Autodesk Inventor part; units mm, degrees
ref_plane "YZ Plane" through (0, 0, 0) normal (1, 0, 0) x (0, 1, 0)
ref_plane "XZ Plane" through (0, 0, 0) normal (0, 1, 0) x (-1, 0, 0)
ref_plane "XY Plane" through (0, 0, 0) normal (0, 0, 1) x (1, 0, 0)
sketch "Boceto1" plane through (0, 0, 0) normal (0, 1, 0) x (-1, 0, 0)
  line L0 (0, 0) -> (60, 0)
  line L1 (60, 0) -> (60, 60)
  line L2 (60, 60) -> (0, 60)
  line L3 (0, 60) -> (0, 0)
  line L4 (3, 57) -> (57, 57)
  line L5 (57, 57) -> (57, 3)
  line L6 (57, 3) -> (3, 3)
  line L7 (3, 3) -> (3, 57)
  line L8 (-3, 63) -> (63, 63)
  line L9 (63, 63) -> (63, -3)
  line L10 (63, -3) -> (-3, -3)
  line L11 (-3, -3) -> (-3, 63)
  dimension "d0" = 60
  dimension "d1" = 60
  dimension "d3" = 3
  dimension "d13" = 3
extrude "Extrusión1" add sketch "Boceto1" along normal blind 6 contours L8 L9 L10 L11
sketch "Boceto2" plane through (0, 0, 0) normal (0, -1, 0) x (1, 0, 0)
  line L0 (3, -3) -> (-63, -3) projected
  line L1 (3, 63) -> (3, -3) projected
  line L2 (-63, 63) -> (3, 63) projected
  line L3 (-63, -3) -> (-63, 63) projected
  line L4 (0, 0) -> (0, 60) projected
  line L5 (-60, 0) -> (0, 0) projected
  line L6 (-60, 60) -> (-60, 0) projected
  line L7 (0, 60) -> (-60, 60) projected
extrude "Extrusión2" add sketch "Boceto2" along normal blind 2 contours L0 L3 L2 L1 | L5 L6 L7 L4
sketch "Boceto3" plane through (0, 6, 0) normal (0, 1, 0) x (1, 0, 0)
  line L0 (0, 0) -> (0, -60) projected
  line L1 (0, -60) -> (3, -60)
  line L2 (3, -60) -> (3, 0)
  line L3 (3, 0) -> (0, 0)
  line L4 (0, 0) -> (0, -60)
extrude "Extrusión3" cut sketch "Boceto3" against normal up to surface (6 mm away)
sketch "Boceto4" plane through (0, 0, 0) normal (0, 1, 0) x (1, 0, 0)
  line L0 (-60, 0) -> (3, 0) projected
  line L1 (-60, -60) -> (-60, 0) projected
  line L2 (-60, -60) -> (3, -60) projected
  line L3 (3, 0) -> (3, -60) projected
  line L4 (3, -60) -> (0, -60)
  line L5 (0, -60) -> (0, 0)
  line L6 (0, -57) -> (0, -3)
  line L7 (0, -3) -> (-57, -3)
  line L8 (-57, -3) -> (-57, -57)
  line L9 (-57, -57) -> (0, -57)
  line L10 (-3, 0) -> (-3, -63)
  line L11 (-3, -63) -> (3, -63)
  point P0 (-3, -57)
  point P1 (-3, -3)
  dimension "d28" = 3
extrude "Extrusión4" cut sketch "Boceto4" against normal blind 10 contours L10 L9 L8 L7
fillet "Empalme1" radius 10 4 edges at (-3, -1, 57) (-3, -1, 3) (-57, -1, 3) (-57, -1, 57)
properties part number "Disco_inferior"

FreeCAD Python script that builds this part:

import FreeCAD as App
import Part
import Sketcher
from FreeCAD import Vector
Q = App.Units.Quantity


def edges_at(feature, points):
    """Names of the edges that pass closest to the given points."""
    edges = feature.Shape.Edges
    near = lambda p: min(range(len(edges)), key=lambda i: edges[i].distToShape(Part.Vertex(*p))[0])
    return sorted({f"Edge{near(p) + 1}" for p in points})


def add_polygon(sketch, points):
    """Adds a closed chain of lines whose ends are joined by coincident constraints."""
    first, n = sketch.GeometryCount, len(points)
    for a, b in zip(points, points[1:] + points[:1]):
        sketch.addGeometry(Part.LineSegment(App.Vector(*a, 0), App.Vector(*b, 0)), False)
    for i in range(n):
        sketch.addConstraint(Sketcher.Constraint("Coincident", first + i, 2, first + (i + 1) % n, 1))

doc = App.newDocument("Part")
params = doc.addObject("Spreadsheet::Sheet", "Params")
for row, (alias, value) in enumerate([
    ("sketch1_width", "60 mm"),
    ("pad1_length", "6 mm"),
    ("sketch2_width", "66 mm"),
    ("pad2_length", "2 mm"),
    ("sketch3_width", "3 mm"),
    ("sketch3_height", "60 mm"),
    ("pocket1_length", "6 mm"),
    ("sketch4_width", "54 mm"),
    ("pocket2_length", "10 mm"),
    ("fillet_radius", "10 mm"),
], start=1):
    params.set(f"A{row}", alias)
    params.set(f"B{row}", "=" + value)
    params.setAlias(f"B{row}", alias)

body = doc.addObject("PartDesign::Body", "Body")

# Sketch on XZ plane
sketch1 = body.newObject("Sketcher::SketchObject", "Sketch")
sketch1.AttachmentSupport = (doc.getObject("XZ_Plane"), [""])
sketch1.MapMode = "FlatFace"
add_polygon(sketch1, [(-63, 63), (3, 63), (3, -3), (-63, -3)])  # lines 0-3
add_polygon(sketch1, [(-60, 0), (0, 0), (0, 60), (-60, 60)])  # lines 4-7
sketch1.addConstraint(Sketcher.Constraint("Horizontal", 0))
sketch1.addConstraint(Sketcher.Constraint("Vertical", 1))
sketch1.addConstraint(Sketcher.Constraint("Horizontal", 2))
sketch1.addConstraint(Sketcher.Constraint("Vertical", 3))
sketch1.addConstraint(Sketcher.Constraint("Horizontal", 4))
sketch1.addConstraint(Sketcher.Constraint("Vertical", 5))
sketch1.addConstraint(Sketcher.Constraint("Horizontal", 6))
sketch1.addConstraint(Sketcher.Constraint("Vertical", 7))
sketch1.addConstraint(Sketcher.Constraint("Coincident", 4, 2, -1, 1))
sketch1.addConstraint(Sketcher.Constraint("Equal", 2, 1))
sketch1.addConstraint(Sketcher.Constraint("Equal", 6, 5))
sketch1.addConstraint(Sketcher.Constraint("DistanceX", 4, 1, 4, 2, Q("60 mm")))
sketch1.addConstraint(Sketcher.Constraint("DistanceX", -1, 1, 0, 2, Q("3 mm")))
sketch1.addConstraint(Sketcher.Constraint("DistanceY", 1, 2, -1, 1, Q("3 mm")))
sketch1.addConstraint(Sketcher.Constraint("DistanceY", 5, 2, 0, 2, Q("3 mm")))
sketch1.setExpression("Constraints[19]", "Params.sketch1_width")
pad1 = body.newObject("PartDesign::Pad", "Pad")
pad1.Profile = sketch1
pad1.setExpression("Length", "Params.pad1_length")
pad1.Reversed = True

# Sketch on XZ plane
sketch2 = body.newObject("Sketcher::SketchObject", "Sketch001")
sketch2.AttachmentSupport = (doc.getObject("XZ_Plane"), [""])
sketch2.MapMode = "FlatFace"
add_polygon(sketch2, [(-63, -3), (3, -3), (3, 63), (-63, 63)])  # lines 0-3
sketch2.addConstraint(Sketcher.Constraint("Horizontal", 0))
sketch2.addConstraint(Sketcher.Constraint("Vertical", 1))
sketch2.addConstraint(Sketcher.Constraint("Horizontal", 2))
sketch2.addConstraint(Sketcher.Constraint("Vertical", 3))
sketch2.addConstraint(Sketcher.Constraint("Equal", 2, 1))
sketch2.addConstraint(Sketcher.Constraint("DistanceX", 0, 1, 0, 2, Q("66 mm")))
sketch2.addConstraint(Sketcher.Constraint("DistanceX", -1, 1, 0, 2, Q("3 mm")))
sketch2.addConstraint(Sketcher.Constraint("DistanceY", 0, 2, -1, 1, Q("3 mm")))
sketch2.setExpression("Constraints[9]", "Params.sketch2_width")
pad2 = body.newObject("PartDesign::Pad", "Pad001")
pad2.Profile = sketch2
pad2.setExpression("Length", "Params.pad2_length")

# Sketch on XZ plane
sketch3 = body.newObject("Sketcher::SketchObject", "Sketch002")
sketch3.AttachmentSupport = (doc.getObject("XZ_Plane"), [""])
sketch3.MapMode = "FlatFace"
sketch3.AttachmentOffset = App.Placement(Vector(0, 0, -6), App.Rotation())
add_polygon(sketch3, [(3, 0), (0, 0), (0, 60), (3, 60)])  # lines 0-3
sketch3.addConstraint(Sketcher.Constraint("Horizontal", 0))
sketch3.addConstraint(Sketcher.Constraint("Vertical", 1))
sketch3.addConstraint(Sketcher.Constraint("Horizontal", 2))
sketch3.addConstraint(Sketcher.Constraint("Vertical", 3))
sketch3.addConstraint(Sketcher.Constraint("Coincident", 0, 2, -1, 1))
sketch3.addConstraint(Sketcher.Constraint("DistanceX", 0, 2, 0, 1, Q("3 mm")))
sketch3.addConstraint(Sketcher.Constraint("DistanceY", 1, 1, 1, 2, Q("60 mm")))
sketch3.setExpression("Constraints[9]", "Params.sketch3_width")
sketch3.setExpression("Constraints[10]", "Params.sketch3_height")
pocket1 = body.newObject("PartDesign::Pocket", "Pocket")
pocket1.Profile = sketch3
pocket1.setExpression("Length", "Params.pocket1_length")
pocket1.Reversed = True

# Sketch on XZ plane
sketch4 = body.newObject("Sketcher::SketchObject", "Sketch003")
sketch4.AttachmentSupport = (doc.getObject("XZ_Plane"), [""])
sketch4.MapMode = "FlatFace"
add_polygon(sketch4, [(-3, 57), (-3, 3), (-57, 3), (-57, 57)])  # lines 0-3
sketch4.addConstraint(Sketcher.Constraint("Vertical", 0))
sketch4.addConstraint(Sketcher.Constraint("Horizontal", 1))
sketch4.addConstraint(Sketcher.Constraint("Vertical", 2))
sketch4.addConstraint(Sketcher.Constraint("Horizontal", 3))
sketch4.addConstraint(Sketcher.Constraint("Equal", 3, 0))
sketch4.addConstraint(Sketcher.Constraint("DistanceX", 0, 2, -1, 1, Q("3 mm")))
sketch4.addConstraint(Sketcher.Constraint("DistanceY", -1, 1, 0, 2, Q("3 mm")))
sketch4.addConstraint(Sketcher.Constraint("DistanceX", 1, 2, 1, 1, Q("54 mm")))
sketch4.setExpression("Constraints[11]", "Params.sketch4_width")
pocket2 = body.newObject("PartDesign::Pocket", "Pocket001")
pocket2.Profile = sketch4
pocket2.setExpression("Length", "Params.pocket2_length")
pocket2.Reversed = True
doc.recompute()

fillet = body.newObject("PartDesign::Fillet", "Fillet")
fillet.Base = (pocket2, edges_at(pocket2, [
    (-3, -1, 57),
    (-3, -1, 3),
    (-57, -1, 3),
    (-57, -1, 57),
]))
fillet.setExpression("Radius", "Params.fillet_radius")

doc.recompute()
